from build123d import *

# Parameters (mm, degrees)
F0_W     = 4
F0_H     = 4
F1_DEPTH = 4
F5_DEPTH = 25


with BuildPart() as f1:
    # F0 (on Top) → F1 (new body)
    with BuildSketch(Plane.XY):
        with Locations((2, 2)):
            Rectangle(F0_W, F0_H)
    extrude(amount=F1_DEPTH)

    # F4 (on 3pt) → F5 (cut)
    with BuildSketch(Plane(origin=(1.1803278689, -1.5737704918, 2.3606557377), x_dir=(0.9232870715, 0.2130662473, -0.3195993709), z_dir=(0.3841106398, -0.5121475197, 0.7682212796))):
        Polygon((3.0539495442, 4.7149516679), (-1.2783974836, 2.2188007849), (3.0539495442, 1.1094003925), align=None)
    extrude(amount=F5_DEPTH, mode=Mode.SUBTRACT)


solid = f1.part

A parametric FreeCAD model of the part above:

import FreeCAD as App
import Part
import Sketcher

V = App.Vector


def add_polygon(sketch, points):
    """Adds a closed chain of lines whose ends are joined by coincident constraints."""
    first, n = sketch.GeometryCount, len(points)
    for a, b in zip(points, points[1:] + points[:1]):
        sketch.addGeometry(Part.LineSegment(App.Vector(*a, 0), App.Vector(*b, 0)), False)
    for i in range(n):
        sketch.addConstraint(Sketcher.Constraint("Coincident", first + i, 2, first + (i + 1) % n, 1))

doc = App.newDocument("Part")
body = doc.addObject("PartDesign::Body", "Body")

sketch1 = body.newObject("Sketcher::SketchObject", "Sketch")
sketch1.AttachmentSupport = (doc.getObject("XY_Plane"), [""])
sketch1.MapMode = "FlatFace"
add_polygon(sketch1, [(0, 4), (0, 0), (4, 0), (4, 4)])
sketch1.addConstraint(Sketcher.Constraint("Vertical", 0))
sketch1.addConstraint(Sketcher.Constraint("Horizontal", 1))
sketch1.addConstraint(Sketcher.Constraint("Vertical", 2))
sketch1.addConstraint(Sketcher.Constraint("Horizontal", 3))
sketch1.addConstraint(Sketcher.Constraint("Coincident", 0, 2, -1, 1))
sketch1.addConstraint(Sketcher.Constraint("Equal", 3, 0))
sketch1.addConstraint(Sketcher.Constraint("DistanceX", 1, 1, 1, 2, 4.0))
pad1 = body.newObject("PartDesign::Pad", "Pad")
pad1.Profile = sketch1
pad1.Length = 4

sketch2 = body.newObject("Sketcher::SketchObject", "Sketch001")
sketch2.Placement = App.Placement(V(1.180328, -1.57377, 2.360656), App.Rotation(V(0.923287071, 0.213066247, -0.319599371), V(0, 0.832050294, 0.554700196), V(0.38411064, -0.51214752, 0.76822128), "ZXY"))
add_polygon(sketch2, [(3.1, 4.7), (-1.3, 2.2), (3.1, 1.1)])
sketch2.addConstraint(Sketcher.Constraint("Vertical", 2))
sketch2.addConstraint(Sketcher.Constraint("Distance", 0, 5.0))
sketch2.addConstraint(Sketcher.Constraint("DistanceY", 2, 1, 2, 2, 3.605551))
sketch2.addConstraint(Sketcher.Constraint("DistanceY", -1, 1, 0, 2, 2.218801))
sketch2.addConstraint(Sketcher.Constraint("DistanceY", -1, 1, 1, 2, 1.1094))
sketch2.addConstraint(Sketcher.Constraint("DistanceX", -1, 1, 1, 2, 3.05395))
pocket1 = body.newObject("PartDesign::Pocket", "Pocket")
pocket1.Profile = sketch2
pocket1.Length = 25
pocket1.Reversed = True

doc.recompute()
